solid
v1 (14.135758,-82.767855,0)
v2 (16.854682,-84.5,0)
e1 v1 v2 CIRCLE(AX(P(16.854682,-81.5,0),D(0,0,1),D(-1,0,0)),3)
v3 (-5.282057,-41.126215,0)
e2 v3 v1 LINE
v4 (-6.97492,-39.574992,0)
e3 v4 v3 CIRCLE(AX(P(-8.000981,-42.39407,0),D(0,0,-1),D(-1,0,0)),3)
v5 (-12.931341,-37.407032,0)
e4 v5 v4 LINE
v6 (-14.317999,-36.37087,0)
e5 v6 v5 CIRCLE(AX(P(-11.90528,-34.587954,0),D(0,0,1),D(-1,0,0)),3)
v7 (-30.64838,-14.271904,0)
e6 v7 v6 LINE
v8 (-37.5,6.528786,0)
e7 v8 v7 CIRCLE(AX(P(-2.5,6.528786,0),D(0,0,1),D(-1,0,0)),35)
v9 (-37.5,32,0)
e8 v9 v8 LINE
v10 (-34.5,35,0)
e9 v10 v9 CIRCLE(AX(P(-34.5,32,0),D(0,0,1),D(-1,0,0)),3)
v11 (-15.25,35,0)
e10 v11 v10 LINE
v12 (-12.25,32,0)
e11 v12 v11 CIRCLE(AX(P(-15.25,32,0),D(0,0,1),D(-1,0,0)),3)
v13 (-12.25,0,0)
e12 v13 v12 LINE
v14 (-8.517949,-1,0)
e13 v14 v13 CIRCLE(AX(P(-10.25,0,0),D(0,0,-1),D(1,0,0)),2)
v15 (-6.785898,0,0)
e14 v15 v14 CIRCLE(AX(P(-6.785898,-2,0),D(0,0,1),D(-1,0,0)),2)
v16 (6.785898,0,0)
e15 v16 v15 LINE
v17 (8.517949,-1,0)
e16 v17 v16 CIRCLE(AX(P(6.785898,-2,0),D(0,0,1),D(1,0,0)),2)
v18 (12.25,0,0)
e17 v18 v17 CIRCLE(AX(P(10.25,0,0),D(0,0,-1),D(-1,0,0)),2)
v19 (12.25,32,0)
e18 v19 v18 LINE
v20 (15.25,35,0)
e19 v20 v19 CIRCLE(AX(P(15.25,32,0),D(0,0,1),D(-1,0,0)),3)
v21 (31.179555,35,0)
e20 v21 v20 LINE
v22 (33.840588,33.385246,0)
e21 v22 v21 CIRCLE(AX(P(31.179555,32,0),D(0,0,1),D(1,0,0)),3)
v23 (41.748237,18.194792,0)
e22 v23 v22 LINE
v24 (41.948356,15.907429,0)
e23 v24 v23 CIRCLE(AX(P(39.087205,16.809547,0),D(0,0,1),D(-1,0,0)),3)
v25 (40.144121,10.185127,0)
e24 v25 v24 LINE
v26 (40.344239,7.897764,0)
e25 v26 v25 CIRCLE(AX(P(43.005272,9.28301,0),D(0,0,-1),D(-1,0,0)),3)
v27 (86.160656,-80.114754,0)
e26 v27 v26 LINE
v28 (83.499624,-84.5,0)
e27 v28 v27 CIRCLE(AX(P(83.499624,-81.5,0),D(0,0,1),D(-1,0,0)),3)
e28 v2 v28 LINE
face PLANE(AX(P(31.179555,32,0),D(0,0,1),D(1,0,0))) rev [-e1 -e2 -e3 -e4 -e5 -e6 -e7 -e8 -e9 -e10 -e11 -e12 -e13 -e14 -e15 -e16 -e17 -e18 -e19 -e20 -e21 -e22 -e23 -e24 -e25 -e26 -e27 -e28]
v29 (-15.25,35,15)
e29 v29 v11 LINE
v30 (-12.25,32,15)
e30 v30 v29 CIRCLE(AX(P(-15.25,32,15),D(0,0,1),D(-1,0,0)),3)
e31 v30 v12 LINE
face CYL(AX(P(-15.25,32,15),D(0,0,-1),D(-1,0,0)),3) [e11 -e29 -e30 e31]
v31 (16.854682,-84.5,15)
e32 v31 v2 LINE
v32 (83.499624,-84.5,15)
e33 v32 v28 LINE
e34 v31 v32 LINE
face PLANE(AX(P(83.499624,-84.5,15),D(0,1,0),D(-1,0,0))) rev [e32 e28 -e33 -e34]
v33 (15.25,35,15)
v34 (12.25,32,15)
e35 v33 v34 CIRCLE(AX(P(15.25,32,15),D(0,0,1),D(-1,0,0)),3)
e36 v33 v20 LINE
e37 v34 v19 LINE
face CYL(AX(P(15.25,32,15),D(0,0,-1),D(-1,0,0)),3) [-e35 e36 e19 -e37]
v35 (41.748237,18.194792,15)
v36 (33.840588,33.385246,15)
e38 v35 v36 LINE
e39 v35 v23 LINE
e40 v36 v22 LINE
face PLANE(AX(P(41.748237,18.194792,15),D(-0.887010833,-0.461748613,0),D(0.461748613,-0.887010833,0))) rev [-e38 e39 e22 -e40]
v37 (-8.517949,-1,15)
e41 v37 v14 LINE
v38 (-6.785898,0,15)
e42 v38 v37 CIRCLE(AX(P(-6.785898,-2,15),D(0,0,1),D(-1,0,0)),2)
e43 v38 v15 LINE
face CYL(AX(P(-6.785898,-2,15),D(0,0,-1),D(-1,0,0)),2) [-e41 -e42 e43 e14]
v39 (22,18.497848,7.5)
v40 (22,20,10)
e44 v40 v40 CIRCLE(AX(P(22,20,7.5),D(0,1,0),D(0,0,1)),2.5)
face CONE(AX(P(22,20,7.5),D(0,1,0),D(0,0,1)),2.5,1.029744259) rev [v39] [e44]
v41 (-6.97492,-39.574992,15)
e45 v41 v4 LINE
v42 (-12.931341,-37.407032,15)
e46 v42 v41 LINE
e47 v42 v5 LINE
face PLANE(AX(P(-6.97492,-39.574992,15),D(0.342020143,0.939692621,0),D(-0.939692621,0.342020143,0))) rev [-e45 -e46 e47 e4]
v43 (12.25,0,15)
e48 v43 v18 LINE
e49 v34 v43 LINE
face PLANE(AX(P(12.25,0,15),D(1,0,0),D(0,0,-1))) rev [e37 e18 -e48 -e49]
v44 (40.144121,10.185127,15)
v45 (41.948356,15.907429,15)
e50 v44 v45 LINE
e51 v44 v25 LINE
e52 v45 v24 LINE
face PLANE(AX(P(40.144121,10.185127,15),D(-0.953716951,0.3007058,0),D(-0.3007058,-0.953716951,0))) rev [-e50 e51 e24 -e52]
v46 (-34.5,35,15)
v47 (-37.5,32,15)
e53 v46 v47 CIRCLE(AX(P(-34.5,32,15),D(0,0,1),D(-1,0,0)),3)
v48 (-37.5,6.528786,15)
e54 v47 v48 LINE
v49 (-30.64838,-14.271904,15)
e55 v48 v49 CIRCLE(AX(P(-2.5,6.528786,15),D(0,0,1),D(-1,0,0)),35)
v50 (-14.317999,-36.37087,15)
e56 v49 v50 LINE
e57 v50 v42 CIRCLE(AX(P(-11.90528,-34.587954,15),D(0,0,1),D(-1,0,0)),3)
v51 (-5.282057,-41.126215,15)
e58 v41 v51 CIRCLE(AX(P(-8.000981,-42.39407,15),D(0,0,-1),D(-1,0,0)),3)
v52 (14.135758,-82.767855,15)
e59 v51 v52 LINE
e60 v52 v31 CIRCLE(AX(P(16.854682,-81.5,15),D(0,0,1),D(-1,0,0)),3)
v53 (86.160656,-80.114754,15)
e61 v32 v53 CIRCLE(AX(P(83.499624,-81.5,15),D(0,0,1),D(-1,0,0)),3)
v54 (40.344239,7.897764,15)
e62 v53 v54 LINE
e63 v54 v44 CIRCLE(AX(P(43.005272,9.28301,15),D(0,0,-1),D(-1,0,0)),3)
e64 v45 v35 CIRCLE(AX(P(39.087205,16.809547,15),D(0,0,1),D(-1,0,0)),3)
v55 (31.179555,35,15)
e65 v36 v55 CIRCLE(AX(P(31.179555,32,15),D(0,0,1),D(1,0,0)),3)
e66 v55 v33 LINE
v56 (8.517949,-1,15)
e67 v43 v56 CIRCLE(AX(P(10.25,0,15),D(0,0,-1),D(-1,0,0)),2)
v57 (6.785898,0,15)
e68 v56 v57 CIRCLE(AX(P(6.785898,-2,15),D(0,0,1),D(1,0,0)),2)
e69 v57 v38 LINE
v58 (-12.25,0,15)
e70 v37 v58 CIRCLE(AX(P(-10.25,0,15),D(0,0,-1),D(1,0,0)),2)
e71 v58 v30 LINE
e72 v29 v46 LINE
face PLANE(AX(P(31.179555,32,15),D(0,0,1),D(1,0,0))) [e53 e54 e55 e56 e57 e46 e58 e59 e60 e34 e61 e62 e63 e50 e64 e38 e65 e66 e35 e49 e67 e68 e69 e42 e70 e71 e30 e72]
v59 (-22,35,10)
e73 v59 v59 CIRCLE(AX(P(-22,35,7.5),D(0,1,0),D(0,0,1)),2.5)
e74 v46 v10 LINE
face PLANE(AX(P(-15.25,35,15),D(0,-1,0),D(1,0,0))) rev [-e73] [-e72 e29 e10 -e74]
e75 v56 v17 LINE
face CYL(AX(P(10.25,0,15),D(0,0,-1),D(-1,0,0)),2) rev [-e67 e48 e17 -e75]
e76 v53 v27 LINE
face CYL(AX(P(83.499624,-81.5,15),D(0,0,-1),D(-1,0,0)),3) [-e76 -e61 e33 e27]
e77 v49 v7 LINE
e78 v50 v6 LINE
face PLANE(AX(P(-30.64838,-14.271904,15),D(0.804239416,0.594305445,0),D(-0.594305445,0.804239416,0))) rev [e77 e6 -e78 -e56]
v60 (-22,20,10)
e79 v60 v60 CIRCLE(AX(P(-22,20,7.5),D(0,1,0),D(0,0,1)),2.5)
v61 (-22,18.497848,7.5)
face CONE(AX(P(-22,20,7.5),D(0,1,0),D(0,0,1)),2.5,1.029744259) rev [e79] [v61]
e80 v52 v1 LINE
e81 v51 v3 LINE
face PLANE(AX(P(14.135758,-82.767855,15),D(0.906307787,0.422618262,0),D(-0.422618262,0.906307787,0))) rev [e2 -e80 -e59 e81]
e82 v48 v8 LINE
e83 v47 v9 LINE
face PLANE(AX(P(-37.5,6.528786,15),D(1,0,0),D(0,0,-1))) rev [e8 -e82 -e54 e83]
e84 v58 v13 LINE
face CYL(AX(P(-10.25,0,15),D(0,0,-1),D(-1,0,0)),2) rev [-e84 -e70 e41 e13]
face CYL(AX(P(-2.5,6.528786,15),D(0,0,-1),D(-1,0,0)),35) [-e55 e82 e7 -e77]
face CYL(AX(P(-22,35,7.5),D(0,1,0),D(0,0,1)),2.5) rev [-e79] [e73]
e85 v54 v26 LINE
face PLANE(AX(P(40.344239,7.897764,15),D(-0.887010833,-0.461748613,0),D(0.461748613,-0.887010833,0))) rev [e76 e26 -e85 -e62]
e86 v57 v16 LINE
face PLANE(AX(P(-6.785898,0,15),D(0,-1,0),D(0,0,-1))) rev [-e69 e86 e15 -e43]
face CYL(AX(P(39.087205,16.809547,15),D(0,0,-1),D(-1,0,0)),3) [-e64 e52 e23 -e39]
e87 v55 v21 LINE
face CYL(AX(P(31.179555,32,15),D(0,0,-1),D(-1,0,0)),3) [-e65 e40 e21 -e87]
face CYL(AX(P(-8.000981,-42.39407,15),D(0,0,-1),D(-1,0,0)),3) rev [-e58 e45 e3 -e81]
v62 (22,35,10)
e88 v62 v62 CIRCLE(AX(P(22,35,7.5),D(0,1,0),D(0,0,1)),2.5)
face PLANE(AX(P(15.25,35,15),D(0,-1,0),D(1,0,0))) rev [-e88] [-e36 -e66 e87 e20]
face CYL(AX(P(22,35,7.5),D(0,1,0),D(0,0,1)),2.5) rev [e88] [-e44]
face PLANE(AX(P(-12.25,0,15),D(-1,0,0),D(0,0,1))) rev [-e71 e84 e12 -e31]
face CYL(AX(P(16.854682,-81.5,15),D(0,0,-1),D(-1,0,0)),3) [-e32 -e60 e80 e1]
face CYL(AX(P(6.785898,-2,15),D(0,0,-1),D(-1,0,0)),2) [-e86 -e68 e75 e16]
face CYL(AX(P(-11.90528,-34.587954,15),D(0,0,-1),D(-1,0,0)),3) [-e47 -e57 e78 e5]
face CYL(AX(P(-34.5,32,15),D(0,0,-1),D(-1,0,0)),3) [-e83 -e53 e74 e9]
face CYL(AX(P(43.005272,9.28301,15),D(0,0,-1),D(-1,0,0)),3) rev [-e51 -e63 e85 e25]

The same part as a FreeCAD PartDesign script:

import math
import FreeCAD as App
import Part
import Sketcher

V = App.Vector
Q = App.Units.Quantity

doc = App.newDocument("Part")
body = doc.addObject("PartDesign::Body", "Body")

# Sketch on XY plane
sketch1 = doc.addObject("Sketcher::SketchObject", "Sketch")
body.addObject(sketch1)
sketch1.AttachmentSupport = (doc.XY_Plane, [""])
sketch1.MapMode = "FlatFace"
sketch1.addGeometry([
    Part.LineSegment(V(6.8, 0, 0), V(-6.8, 0, 0)),  # 0
    Part.ArcOfCircle(Part.Circle(V(-6.8, -2, 0), V(0, 0, 1), 2), math.radians(90), math.radians(150)),  # 1
    Part.ArcOfCircle(Part.Circle(V(-10.2, 0, 0), V(0, 0, 1), 2), math.radians(180), math.radians(330)),  # 2
    Part.LineSegment(V(-12.2, 0, 0), V(-12.2, 32, 0)),  # 3
    Part.ArcOfCircle(Part.Circle(V(-15.2, 32, 0), V(0, 0, 1), 3), math.radians(0), math.radians(90)),  # 4
    Part.LineSegment(V(-15.2, 35, 0), V(-34.5, 35, 0)),  # 5
    Part.ArcOfCircle(Part.Circle(V(-34.5, 32, 0), V(0, 0, 1), 3), math.radians(90), math.radians(180)),  # 6
    Part.LineSegment(V(-37.5, 32, 0), V(-37.5, 6.5, 0)),  # 7
    Part.ArcOfCircle(Part.Circle(V(-2.5, 6.5, 0), V(0, 0, 1), 35), math.radians(180), math.radians(216)),  # 8
    Part.LineSegment(V(-30.6, -14.3, 0), V(-14.3, -36.4, 0)),  # 9
    Part.ArcOfCircle(Part.Circle(V(-11.9, -34.6, 0), V(0, 0, 1), 3), math.radians(-144), math.radians(-110)),  # 10
    Part.LineSegment(V(-12.9, -37.4, 0), V(-7, -39.6, 0)),  # 11
    Part.ArcOfCircle(Part.Circle(V(-8, -42.4, 0), V(0, 0, 1), 3), math.radians(25), math.radians(70)),  # 12
    Part.LineSegment(V(-5.3, -41.1, 0), V(14.1, -82.8, 0)),  # 13
    Part.ArcOfCircle(Part.Circle(V(16.9, -81.5, 0), V(0, 0, 1), 3), math.radians(-155), math.radians(-90)),  # 14
    Part.LineSegment(V(16.9, -84.5, 0), V(83.5, -84.5, 0)),  # 15
    Part.ArcOfCircle(Part.Circle(V(83.5, -81.5, 0), V(0, 0, 1), 3), math.radians(-90), math.radians(27)),  # 16
    Part.LineSegment(V(86.2, -80.1, 0), V(40.3, 7.9, 0)),  # 17
    Part.ArcOfCircle(Part.Circle(V(43, 9.3, 0), V(0, 0, 1), 3), math.radians(162), math.radians(208)),  # 18
    Part.LineSegment(V(40.1, 10.2, 0), V(41.9, 15.9, 0)),  # 19
    Part.ArcOfCircle(Part.Circle(V(39.1, 16.8, 0), V(0, 0, 1), 3), math.radians(-18), math.radians(28)),  # 20
    Part.LineSegment(V(41.7, 18.2, 0), V(33.8, 33.4, 0)),  # 21
    Part.ArcOfCircle(Part.Circle(V(31.2, 32, 0), V(0, 0, 1), 3), math.radians(28), math.radians(90)),  # 22
    Part.LineSegment(V(31.2, 35, 0), V(15.2, 35, 0)),  # 23
    Part.ArcOfCircle(Part.Circle(V(15.2, 32, 0), V(0, 0, 1), 3), math.radians(90), math.radians(180)),  # 24
    Part.LineSegment(V(12.2, 32, 0), V(12.2, 0, 0)),  # 25
    Part.ArcOfCircle(Part.Circle(V(10.2, 0, 0), V(0, 0, 1), 2), math.radians(-150), math.radians(0)),  # 26
    Part.ArcOfCircle(Part.Circle(V(6.8, -2, 0), V(0, 0, 1), 2), math.radians(30), math.radians(90)),  # 27
], False)
sketch1.addConstraint([
    Sketcher.Constraint("Tangent", 0, 2, 1, 1),
    Sketcher.Constraint("Tangent", 1, 2, 2, 2),
    Sketcher.Constraint("Tangent", 2, 1, 3, 1),
    Sketcher.Constraint("Tangent", 3, 2, 4, 1),
    Sketcher.Constraint("Tangent", 4, 2, 5, 1),
    Sketcher.Constraint("Tangent", 5, 2, 6, 1),
    Sketcher.Constraint("Tangent", 6, 2, 7, 1),
    Sketcher.Constraint("Tangent", 7, 2, 8, 1),
    Sketcher.Constraint("Tangent", 8, 2, 9, 1),
    Sketcher.Constraint("Tangent", 9, 2, 10, 1),
    Sketcher.Constraint("Tangent", 10, 2, 11, 1),
    Sketcher.Constraint("Tangent", 11, 2, 12, 2),
    Sketcher.Constraint("Tangent", 12, 1, 13, 1),
    Sketcher.Constraint("Tangent", 13, 2, 14, 1),
    Sketcher.Constraint("Tangent", 14, 2, 15, 1),
    Sketcher.Constraint("Tangent", 15, 2, 16, 1),
    Sketcher.Constraint("Tangent", 16, 2, 17, 1),
    Sketcher.Constraint("Tangent", 17, 2, 18, 2),
    Sketcher.Constraint("Tangent", 18, 1, 19, 1),
    Sketcher.Constraint("Tangent", 19, 2, 20, 1),
    Sketcher.Constraint("Tangent", 20, 2, 21, 1),
    Sketcher.Constraint("Tangent", 21, 2, 22, 1),
    Sketcher.Constraint("Tangent", 22, 2, 23, 1),
    Sketcher.Constraint("Tangent", 23, 2, 24, 1),
    Sketcher.Constraint("Tangent", 24, 2, 25, 1),
    Sketcher.Constraint("Tangent", 25, 2, 26, 2),
    Sketcher.Constraint("Tangent", 26, 1, 27, 1),
    Sketcher.Constraint("Tangent", 27, 2, 0, 1),
    Sketcher.Constraint("Horizontal", 0),
    Sketcher.Constraint("Vertical", 3),
    Sketcher.Constraint("Horizontal", 5),
    Sketcher.Constraint("Vertical", 7),
    Sketcher.Constraint("Horizontal", 15),
    Sketcher.Constraint("Horizontal", 23),
    Sketcher.Constraint("Vertical", 25),
    Sketcher.Constraint("Equal", 1, 2),
    Sketcher.Constraint("Equal", 4, 6),
    Sketcher.Constraint("Equal", 6, 10),
    Sketcher.Constraint("Equal", 10, 12),
    Sketcher.Constraint("Equal", 12, 14),
    Sketcher.Constraint("Equal", 14, 16),
    Sketcher.Constraint("Equal", 16, 18),
    Sketcher.Constraint("Equal", 18, 20),
    Sketcher.Constraint("Equal", 20, 22),
    Sketcher.Constraint("Equal", 22, 24),
    Sketcher.Constraint("Equal", 2, 26),
    Sketcher.Constraint("Equal", 26, 27),
    Sketcher.Constraint("Symmetric", 2, 3, 26, 3, -1, 1),
    Sketcher.Constraint("Symmetric", 0, 2, 27, 2, -1, 1),
    Sketcher.Constraint("Parallel", 17, 21),
    Sketcher.Constraint("Horizontal", 6, 3, 22, 3),
    Sketcher.Constraint("Radius", 1, Q("2 mm")),
    Sketcher.Constraint("Radius", 4, Q("3 mm")),
    Sketcher.Constraint("Radius", 8, Q("35 mm")),
    Sketcher.Constraint("DistanceY", 3, 1, 3, 2, Q("32 mm")),
    Sketcher.Constraint("Angle", 11, Q("-20 deg")),
    Sketcher.Constraint("Angle", 13, Q("-65 deg")),
    Sketcher.Constraint("Distance", 19, Q("6 mm")),
    Sketcher.Constraint("Angle", 17, Q("117.5 deg")),
    Sketcher.Constraint("Angle", 19, Q("72.5 deg")),
    Sketcher.Constraint("DistanceX", 5, 2, 5, 1, Q("19.25 mm")),
    Sketcher.Constraint("DistanceX", 6, 3, -1, 1, Q("34.5 mm")),
    Sketcher.Constraint("DistanceY", 14, 3, -1, 1, Q("81.5 mm")),
    Sketcher.Constraint("DistanceX", 9, 2, -1, 1, Q("14.317999 mm")),
    Sketcher.Constraint("DistanceX", 10, 3, 12, 3, Q("3.9043 mm")),
    Sketcher.Constraint("DistanceY", 12, 3, 9, 2, Q("6.023199 mm")),
    Sketcher.Constraint("DistanceX", 10, 2, 13, 2, Q("27.067099 mm")),
    Sketcher.Constraint("DistanceX", 13, 2, 16, 2, Q("72.024898 mm")),
    Sketcher.Constraint("DistanceX", 22, 3, 19, 2, Q("10.7688 mm")),
])
pad1 = doc.addObject("PartDesign::Pad", "Pad")
body.addObject(pad1)
pad1.Profile = sketch1
pad1.Length = 15

# Sketch on XZ plane
sketch2 = doc.addObject("Sketcher::SketchObject", "Sketch001")
body.addObject(sketch2)
sketch2.AttachmentSupport = (doc.XZ_Plane, [""])
sketch2.MapMode = "FlatFace"
sketch2.AttachmentOffset = App.Placement(V(0, 0, -35), App.Rotation())
sketch2.addGeometry([
    Part.Circle(V(22, 7.5, 0), V(0, 0, 1), 2.5),
    Part.Circle(V(-22, 7.5, 0), V(0, 0, 1), 2.5),
], False)
sketch2.addConstraint([
    Sketcher.Constraint("Equal", 0, 1),
    Sketcher.Constraint("Symmetric", 0, 3, 1, 3, -2),
    Sketcher.Constraint("Diameter", 0, Q("5 mm")),
    Sketcher.Constraint("DistanceX", -1, 1, 0, 3, Q("22 mm")),
    Sketcher.Constraint("DistanceY", -1, 1, 0, 3, Q("7.5 mm")),
])
doc.recompute()
hole = doc.addObject("PartDesign::Hole", "Hole")
body.addObject(hole)
hole.Profile = sketch2
hole.ThreadType = "None"
hole.Diameter = 5
hole.DepthType = "Dimension"
hole.Depth = 15
hole.DrillPoint = "Angled"
hole.DrillPointAngle = 118
hole.Reversed = True

doc.recompute()
